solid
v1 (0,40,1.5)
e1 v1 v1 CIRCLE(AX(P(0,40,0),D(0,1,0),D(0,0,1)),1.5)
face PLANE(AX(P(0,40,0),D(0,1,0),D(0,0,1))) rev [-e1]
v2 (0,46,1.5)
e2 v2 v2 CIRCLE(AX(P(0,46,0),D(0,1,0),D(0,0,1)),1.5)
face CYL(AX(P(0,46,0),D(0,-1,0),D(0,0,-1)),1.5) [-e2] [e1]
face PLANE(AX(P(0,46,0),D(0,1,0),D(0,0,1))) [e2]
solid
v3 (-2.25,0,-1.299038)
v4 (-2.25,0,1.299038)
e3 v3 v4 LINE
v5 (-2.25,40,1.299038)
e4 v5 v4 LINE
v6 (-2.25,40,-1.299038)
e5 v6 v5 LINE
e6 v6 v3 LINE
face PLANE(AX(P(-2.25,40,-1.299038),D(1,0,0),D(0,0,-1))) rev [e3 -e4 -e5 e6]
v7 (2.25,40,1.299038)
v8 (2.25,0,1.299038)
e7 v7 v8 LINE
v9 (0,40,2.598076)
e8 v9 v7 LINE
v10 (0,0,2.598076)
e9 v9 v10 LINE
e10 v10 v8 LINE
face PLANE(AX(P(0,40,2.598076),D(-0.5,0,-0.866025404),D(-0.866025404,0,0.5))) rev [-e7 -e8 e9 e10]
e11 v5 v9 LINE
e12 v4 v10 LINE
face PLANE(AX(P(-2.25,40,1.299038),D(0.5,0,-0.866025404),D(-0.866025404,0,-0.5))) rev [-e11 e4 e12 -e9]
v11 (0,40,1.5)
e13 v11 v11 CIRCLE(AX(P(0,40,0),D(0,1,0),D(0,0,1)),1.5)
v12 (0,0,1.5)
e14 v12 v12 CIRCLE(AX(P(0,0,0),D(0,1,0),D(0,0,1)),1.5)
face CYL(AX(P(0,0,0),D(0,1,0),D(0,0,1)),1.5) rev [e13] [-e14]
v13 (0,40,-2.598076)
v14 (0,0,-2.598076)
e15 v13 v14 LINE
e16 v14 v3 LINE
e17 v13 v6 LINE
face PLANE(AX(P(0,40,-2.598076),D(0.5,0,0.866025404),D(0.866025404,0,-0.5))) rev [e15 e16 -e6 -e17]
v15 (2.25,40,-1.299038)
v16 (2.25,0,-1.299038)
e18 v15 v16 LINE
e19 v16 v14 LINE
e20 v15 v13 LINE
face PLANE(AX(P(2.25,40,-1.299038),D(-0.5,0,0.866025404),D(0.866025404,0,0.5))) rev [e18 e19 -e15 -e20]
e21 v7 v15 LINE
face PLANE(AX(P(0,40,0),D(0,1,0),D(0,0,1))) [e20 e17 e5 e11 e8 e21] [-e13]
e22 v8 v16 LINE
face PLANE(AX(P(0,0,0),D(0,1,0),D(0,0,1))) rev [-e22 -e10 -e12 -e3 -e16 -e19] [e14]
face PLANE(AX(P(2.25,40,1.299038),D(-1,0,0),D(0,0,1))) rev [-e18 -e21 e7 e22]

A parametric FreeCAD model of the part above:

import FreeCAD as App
import Part
import Sketcher
Q = App.Units.Quantity


def add_polygon(sketch, points):
    """Adds a closed chain of lines whose ends are joined by coincident constraints."""
    first, n = sketch.GeometryCount, len(points)
    for a, b in zip(points, points[1:] + points[:1]):
        sketch.addGeometry(Part.LineSegment(App.Vector(*a, 0), App.Vector(*b, 0)), False)
    for i in range(n):
        sketch.addConstraint(Sketcher.Constraint("Coincident", first + i, 2, first + (i + 1) % n, 1))

doc = App.newDocument("Part")
body = doc.addObject("PartDesign::Body", "Body")

# Sketch on XZ plane
sketch1 = body.newObject("Sketcher::SketchObject", "Sketch")
sketch1.AttachmentSupport = (doc.getObject("XZ_Plane"), [""])
sketch1.MapMode = "FlatFace"
add_polygon(sketch1, [(0, -2.6), (-2.2, -1.3), (-2.2, 1.3), (0, 2.6), (2.2, 1.3), (2.2, -1.3)])  # lines 0-5
sketch1.addConstraint(Sketcher.Constraint("Vertical", 1))
sketch1.addConstraint(Sketcher.Constraint("Vertical", 4))
sketch1.addConstraint(Sketcher.Constraint("Symmetric", 0, 2, 3, 2, -1, 1))
sketch1.addConstraint(Sketcher.Constraint("Symmetric", 2, 2, 5, 2, -1, 1))
sketch1.addConstraint(Sketcher.Constraint("PointOnObject", 2, 2, -2))
sketch1.addConstraint(Sketcher.Constraint("Parallel", 2, 5))
sketch1.addConstraint(Sketcher.Constraint("Horizontal", 1, 2, 3, 2))
sketch1.addConstraint(Sketcher.Constraint("Angle", 0, Q("150 deg")))
sketch1.addConstraint(Sketcher.Constraint("DistanceX", 1, 2, 3, 2, 4.5))
sketch1.addConstraint(Sketcher.Constraint("DistanceY", 1, 1, 1, 2, 2.598076))
pad1 = body.newObject("PartDesign::Pad", "Pad")
pad1.Profile = sketch1
pad1.Length = 40
pad1.Reversed = True

# Sketch on XZ plane
sketch2 = body.newObject("Sketcher::SketchObject", "Sketch001")
sketch2.AttachmentSupport = (doc.getObject("XZ_Plane"), [""])
sketch2.MapMode = "FlatFace"
sketch2.AttachmentOffset = App.Placement(App.Vector(0, 0, -40), App.Rotation())
sketch2.addGeometry(Part.Circle(App.Vector(0, 0, 0), App.Vector(0, 0, 1), 1.5), False)
sketch2.addConstraint(Sketcher.Constraint("Coincident", 0, 3, -1, 1))
sketch2.addConstraint(Sketcher.Constraint("Diameter", 0, 3.0))
pocket1 = body.newObject("PartDesign::Pocket", "Pocket")
pocket1.Profile = sketch2
pocket1.Length = 40
pocket1.Reversed = True
body2 = doc.addObject("PartDesign::Body", "Body001")

# Sketch on XZ plane
sketch3 = body2.newObject("Sketcher::SketchObject", "Sketch002")
sketch3.AttachmentSupport = (doc.getObject("XZ_Plane001"), [""])
sketch3.MapMode = "FlatFace"
sketch3.AttachmentOffset = App.Placement(App.Vector(0, 0, -40), App.Rotation())
sketch3.addGeometry(Part.Circle(App.Vector(0, 0, 0), App.Vector(0, 0, 1), 1.5), False)
sketch3.addConstraint(Sketcher.Constraint("Coincident", 0, 3, -1, 1))
sketch3.addConstraint(Sketcher.Constraint("Diameter", 0, 3.0))
pad2 = body2.newObject("PartDesign::Pad", "Pad001")
pad2.Profile = sketch3
pad2.Length = 6
pad2.Reversed = True

doc.recompute()
